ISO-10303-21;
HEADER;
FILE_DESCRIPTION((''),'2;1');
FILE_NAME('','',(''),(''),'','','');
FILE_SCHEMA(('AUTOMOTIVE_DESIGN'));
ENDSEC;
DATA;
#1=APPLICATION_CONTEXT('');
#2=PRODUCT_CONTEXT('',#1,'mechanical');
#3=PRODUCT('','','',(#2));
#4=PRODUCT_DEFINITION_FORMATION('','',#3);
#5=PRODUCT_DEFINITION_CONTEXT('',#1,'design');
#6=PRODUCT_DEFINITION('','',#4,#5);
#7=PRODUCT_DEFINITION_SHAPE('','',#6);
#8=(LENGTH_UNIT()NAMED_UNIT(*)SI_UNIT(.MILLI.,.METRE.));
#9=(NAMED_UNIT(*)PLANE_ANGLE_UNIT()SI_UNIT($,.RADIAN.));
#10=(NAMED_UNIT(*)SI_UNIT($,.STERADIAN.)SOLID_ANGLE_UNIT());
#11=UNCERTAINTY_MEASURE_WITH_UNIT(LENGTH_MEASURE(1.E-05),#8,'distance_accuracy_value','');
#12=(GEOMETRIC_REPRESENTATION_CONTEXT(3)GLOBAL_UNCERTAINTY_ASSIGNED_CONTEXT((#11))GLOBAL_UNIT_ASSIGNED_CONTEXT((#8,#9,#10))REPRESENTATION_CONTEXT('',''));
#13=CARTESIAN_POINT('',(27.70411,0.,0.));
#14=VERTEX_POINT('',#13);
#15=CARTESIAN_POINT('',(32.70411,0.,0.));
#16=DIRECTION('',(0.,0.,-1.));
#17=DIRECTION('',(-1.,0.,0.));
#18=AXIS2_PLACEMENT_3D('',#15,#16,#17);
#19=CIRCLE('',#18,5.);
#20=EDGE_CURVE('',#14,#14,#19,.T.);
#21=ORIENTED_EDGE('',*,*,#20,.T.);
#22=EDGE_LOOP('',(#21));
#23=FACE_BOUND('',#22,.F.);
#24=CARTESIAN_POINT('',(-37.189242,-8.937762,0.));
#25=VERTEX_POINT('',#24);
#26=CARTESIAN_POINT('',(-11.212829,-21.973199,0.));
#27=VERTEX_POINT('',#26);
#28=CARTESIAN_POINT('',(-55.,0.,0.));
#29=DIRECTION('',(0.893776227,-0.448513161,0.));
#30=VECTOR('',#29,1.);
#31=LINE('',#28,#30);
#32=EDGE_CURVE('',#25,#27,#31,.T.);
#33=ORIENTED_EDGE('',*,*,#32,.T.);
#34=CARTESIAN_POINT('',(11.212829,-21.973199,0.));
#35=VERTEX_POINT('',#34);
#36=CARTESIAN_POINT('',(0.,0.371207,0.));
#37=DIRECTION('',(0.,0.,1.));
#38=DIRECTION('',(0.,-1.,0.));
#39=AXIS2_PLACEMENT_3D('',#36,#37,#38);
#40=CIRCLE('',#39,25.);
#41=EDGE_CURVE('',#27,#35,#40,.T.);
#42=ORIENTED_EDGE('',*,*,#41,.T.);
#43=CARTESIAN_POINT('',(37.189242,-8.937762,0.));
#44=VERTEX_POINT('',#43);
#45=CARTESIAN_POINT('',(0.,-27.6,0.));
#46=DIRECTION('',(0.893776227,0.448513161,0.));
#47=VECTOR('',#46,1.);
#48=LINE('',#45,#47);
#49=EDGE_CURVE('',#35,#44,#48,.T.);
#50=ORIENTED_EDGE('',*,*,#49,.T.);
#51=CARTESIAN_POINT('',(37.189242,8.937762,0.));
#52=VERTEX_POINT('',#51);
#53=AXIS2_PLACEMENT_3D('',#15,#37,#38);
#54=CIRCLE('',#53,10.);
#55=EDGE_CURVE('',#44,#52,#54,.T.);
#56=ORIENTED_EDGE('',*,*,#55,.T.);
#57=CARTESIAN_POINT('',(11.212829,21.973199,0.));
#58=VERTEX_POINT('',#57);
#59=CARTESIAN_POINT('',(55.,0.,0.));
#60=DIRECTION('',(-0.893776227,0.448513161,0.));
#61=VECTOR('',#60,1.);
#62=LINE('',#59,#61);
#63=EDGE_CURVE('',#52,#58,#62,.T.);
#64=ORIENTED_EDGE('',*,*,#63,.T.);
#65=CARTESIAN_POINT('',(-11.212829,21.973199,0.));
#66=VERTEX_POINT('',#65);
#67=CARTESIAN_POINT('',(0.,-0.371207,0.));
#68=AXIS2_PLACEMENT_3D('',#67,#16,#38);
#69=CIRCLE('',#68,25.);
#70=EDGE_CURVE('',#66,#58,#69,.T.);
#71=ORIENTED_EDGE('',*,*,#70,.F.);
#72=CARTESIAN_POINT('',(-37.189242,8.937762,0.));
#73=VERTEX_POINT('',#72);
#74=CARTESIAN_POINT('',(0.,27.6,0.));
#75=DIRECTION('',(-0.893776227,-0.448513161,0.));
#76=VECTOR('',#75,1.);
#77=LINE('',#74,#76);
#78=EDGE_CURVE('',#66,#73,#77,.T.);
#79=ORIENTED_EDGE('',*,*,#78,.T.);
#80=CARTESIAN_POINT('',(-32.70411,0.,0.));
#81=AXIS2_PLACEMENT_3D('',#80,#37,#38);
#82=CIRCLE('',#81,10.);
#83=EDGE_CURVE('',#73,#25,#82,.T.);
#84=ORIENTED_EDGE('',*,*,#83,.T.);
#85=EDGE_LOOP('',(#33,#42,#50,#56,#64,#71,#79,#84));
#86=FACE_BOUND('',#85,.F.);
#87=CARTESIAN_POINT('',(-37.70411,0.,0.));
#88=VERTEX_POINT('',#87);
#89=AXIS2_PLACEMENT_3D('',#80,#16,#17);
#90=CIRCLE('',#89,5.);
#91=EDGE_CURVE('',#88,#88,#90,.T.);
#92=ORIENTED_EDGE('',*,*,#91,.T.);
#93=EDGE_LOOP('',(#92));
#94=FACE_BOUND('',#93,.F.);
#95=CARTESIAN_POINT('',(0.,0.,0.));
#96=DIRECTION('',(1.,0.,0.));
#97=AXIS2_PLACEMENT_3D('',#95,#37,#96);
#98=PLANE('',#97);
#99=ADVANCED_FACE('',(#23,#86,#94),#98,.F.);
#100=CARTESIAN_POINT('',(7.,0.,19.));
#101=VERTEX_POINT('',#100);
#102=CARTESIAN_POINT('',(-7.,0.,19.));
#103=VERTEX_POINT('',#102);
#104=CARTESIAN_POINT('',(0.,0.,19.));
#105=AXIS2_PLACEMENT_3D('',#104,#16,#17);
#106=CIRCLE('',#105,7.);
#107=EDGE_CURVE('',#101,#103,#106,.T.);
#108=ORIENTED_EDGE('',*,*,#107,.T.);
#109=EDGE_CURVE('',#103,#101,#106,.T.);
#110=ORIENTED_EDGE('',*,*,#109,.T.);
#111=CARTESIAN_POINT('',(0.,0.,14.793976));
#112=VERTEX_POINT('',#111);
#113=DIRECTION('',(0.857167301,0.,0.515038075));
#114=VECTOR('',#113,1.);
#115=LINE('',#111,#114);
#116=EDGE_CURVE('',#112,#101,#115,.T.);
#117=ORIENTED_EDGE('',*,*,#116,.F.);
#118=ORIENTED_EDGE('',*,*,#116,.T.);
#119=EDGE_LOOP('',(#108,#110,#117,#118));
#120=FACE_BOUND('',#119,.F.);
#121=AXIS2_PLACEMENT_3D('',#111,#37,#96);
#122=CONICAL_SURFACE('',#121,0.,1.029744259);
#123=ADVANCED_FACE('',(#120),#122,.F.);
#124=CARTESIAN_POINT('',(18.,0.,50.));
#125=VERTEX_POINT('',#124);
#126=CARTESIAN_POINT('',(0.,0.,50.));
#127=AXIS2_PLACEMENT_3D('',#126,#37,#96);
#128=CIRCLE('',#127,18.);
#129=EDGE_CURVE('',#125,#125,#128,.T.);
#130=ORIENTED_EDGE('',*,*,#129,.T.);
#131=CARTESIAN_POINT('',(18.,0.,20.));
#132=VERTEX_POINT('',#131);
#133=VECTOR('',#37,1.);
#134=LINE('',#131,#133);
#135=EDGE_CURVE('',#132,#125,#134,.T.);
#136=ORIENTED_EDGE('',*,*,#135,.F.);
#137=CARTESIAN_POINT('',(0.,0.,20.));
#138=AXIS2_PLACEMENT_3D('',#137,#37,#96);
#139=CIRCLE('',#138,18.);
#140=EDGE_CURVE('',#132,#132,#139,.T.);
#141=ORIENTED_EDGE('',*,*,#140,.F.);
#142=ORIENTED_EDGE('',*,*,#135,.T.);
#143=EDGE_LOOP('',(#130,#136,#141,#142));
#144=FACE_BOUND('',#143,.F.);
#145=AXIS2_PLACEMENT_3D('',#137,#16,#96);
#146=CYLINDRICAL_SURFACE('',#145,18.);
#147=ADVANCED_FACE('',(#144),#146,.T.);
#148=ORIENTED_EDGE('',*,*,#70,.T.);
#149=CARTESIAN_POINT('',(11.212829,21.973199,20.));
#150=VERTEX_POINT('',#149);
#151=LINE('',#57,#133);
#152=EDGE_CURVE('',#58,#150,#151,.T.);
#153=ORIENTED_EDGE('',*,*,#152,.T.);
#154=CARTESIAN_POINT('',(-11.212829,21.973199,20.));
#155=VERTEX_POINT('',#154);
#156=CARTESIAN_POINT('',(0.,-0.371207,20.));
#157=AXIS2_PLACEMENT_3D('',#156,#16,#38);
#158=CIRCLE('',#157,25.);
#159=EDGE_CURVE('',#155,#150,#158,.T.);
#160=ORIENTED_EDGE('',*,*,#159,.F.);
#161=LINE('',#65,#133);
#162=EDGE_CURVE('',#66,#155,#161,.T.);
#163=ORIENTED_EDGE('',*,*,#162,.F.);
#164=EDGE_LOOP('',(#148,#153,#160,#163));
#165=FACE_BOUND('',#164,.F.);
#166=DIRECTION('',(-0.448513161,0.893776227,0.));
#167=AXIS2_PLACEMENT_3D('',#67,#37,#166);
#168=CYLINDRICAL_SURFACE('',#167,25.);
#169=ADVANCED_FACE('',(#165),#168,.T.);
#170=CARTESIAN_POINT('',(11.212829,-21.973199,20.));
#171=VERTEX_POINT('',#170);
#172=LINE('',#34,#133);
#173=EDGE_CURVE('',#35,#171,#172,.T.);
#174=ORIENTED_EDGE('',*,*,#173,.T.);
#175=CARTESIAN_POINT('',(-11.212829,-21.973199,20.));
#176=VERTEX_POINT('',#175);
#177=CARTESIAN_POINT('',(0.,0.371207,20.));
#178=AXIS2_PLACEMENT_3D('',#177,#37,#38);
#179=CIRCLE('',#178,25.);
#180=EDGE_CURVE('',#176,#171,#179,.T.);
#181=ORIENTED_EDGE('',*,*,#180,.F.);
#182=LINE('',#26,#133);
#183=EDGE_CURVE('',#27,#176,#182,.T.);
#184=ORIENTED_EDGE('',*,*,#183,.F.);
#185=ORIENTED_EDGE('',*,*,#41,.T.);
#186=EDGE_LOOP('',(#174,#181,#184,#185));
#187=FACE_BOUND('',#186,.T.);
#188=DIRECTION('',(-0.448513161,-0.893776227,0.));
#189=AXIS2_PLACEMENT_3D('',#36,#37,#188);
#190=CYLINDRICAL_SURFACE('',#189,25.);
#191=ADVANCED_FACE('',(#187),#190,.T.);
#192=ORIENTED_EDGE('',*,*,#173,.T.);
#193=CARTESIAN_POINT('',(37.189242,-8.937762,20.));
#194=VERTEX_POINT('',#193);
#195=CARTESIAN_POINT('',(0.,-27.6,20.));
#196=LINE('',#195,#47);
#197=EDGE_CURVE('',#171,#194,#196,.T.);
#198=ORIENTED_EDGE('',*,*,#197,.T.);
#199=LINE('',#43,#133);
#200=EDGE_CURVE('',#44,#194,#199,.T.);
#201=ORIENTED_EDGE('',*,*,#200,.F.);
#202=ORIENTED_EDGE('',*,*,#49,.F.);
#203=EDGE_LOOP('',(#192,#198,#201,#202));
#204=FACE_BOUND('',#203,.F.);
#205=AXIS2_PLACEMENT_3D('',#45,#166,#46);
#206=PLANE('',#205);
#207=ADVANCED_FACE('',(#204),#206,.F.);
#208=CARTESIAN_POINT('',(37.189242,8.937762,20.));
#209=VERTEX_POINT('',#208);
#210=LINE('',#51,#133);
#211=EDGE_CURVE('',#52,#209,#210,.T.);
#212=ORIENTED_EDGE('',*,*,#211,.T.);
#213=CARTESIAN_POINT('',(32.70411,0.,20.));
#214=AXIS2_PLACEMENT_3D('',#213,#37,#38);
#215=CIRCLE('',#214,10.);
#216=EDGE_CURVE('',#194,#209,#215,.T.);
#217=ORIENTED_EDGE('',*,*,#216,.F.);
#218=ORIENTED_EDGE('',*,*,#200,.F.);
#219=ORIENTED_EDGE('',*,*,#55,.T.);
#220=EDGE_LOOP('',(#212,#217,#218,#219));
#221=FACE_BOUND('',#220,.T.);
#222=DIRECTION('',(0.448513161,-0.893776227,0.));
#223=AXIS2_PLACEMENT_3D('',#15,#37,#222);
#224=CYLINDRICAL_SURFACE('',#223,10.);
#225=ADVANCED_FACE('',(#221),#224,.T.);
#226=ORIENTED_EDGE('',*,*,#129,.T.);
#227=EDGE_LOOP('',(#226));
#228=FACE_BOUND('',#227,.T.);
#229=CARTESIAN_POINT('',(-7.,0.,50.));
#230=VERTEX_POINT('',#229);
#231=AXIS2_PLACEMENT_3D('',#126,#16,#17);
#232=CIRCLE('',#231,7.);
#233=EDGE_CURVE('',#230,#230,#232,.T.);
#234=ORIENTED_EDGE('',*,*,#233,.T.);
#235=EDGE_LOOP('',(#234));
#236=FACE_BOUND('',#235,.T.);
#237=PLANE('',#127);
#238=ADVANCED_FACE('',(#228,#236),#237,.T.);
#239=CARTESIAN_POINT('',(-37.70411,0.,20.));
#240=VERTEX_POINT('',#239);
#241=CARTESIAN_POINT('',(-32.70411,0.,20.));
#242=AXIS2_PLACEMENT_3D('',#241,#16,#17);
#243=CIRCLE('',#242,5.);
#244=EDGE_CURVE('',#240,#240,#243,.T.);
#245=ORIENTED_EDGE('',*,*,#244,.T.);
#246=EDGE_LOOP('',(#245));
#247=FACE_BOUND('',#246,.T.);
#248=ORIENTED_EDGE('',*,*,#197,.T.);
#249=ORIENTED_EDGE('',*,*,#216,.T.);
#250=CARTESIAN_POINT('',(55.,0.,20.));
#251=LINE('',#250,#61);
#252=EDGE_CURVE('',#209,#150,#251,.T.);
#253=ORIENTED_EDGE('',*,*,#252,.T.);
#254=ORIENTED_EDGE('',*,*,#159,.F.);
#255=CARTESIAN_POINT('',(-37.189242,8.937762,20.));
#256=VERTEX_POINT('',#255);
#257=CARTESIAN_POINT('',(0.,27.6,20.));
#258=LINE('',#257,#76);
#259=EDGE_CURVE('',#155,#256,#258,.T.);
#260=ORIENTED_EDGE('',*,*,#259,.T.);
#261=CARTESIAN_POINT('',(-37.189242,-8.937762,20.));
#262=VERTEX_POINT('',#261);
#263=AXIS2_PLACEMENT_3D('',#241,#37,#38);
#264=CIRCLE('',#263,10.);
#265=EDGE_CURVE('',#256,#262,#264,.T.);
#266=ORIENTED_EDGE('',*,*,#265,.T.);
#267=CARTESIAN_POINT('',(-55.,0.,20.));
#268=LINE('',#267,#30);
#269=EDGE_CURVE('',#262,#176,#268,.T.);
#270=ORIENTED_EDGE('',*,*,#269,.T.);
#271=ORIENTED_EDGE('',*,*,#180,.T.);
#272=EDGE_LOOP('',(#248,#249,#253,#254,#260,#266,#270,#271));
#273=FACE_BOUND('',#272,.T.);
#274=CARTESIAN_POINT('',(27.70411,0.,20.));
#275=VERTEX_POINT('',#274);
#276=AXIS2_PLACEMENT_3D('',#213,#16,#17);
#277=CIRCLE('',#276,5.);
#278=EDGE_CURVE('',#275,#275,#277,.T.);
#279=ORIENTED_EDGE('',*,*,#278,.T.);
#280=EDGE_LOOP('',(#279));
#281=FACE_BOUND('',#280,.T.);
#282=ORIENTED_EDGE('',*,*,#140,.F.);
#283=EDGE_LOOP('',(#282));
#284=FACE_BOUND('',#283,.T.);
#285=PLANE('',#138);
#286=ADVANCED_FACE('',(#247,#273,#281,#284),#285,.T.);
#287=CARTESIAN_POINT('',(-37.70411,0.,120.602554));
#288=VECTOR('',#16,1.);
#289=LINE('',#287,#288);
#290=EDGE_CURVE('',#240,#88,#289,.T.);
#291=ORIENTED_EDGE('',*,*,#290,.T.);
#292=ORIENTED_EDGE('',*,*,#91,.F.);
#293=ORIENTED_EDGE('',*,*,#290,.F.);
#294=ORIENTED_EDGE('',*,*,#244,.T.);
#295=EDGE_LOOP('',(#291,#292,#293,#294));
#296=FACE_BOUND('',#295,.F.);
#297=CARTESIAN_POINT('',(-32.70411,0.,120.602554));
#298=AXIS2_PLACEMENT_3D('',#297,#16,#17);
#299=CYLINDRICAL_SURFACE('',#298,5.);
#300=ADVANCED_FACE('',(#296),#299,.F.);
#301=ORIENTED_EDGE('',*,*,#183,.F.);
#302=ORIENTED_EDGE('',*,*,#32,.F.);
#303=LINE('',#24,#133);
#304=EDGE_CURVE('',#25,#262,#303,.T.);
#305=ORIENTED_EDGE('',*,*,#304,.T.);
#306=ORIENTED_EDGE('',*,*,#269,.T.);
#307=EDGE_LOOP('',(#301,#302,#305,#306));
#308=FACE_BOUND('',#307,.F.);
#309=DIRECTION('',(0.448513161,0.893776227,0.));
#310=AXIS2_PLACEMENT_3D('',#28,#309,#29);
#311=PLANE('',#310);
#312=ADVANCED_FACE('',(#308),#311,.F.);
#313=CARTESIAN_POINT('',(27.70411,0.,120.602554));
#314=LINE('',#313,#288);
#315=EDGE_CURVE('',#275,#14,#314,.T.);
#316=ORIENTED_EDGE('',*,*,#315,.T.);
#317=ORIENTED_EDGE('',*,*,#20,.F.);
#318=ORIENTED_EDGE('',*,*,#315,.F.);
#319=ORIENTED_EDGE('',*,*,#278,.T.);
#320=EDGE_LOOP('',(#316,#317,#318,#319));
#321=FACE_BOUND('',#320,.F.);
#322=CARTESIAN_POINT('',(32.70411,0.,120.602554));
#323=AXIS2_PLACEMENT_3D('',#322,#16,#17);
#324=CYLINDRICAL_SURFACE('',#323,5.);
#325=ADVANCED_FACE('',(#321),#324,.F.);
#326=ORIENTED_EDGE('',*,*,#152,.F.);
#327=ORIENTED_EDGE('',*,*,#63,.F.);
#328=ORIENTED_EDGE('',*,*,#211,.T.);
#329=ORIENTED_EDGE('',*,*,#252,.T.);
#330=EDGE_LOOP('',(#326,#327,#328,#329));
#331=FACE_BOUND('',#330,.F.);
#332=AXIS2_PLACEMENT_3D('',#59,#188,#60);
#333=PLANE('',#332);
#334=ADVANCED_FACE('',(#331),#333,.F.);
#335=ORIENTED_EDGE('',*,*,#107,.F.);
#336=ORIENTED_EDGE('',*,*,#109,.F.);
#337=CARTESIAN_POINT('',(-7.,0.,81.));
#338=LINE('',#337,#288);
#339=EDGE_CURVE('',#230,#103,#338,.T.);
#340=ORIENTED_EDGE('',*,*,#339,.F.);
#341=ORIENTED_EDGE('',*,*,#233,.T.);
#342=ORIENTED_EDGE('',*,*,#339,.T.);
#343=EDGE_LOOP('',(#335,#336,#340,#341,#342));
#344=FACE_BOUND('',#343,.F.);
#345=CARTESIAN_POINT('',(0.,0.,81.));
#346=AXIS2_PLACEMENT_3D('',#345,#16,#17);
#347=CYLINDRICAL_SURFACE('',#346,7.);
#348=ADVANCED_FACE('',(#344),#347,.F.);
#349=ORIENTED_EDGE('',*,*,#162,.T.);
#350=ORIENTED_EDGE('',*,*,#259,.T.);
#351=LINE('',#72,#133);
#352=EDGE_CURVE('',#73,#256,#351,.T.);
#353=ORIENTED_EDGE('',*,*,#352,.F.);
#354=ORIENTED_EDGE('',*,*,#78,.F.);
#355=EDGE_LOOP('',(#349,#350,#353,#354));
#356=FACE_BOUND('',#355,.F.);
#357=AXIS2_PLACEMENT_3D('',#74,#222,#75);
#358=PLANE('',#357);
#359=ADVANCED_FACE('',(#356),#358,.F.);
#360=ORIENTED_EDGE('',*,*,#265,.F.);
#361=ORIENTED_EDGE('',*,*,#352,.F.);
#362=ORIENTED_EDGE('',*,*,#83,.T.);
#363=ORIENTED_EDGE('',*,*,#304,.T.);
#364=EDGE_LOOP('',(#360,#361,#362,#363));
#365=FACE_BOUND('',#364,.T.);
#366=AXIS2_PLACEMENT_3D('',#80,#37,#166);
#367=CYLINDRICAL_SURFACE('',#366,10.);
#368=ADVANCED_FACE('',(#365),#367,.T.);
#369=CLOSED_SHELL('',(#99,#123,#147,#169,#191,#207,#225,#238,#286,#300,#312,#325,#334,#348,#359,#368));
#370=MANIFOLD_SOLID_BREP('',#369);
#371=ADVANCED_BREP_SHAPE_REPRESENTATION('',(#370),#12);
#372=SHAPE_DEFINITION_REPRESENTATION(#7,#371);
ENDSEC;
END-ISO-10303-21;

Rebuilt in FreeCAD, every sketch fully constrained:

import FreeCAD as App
import Part
import Sketcher

V = App.Vector


def edges_at(feature, points):
    """Names of the edges that pass closest to the given points."""
    edges = feature.Shape.Edges
    near = lambda p: min(range(len(edges)), key=lambda i: edges[i].distToShape(Part.Vertex(*p))[0])
    return sorted({f"Edge{near(p) + 1}" for p in points})


def add_polygon(sketch, points):
    """Adds a closed chain of lines whose ends are joined by coincident constraints."""
    first, n = sketch.GeometryCount, len(points)
    for a, b in zip(points, points[1:] + points[:1]):
        sketch.addGeometry(Part.LineSegment(App.Vector(*a, 0), App.Vector(*b, 0)), False)
    for i in range(n):
        sketch.addConstraint(Sketcher.Constraint("Coincident", first + i, 2, first + (i + 1) % n, 1))

doc = App.newDocument("Part")
body = doc.addObject("PartDesign::Body", "Body")

# Sketch on XY plane
sketch1 = doc.addObject("Sketcher::SketchObject", "Sketch")
body.addObject(sketch1)
sketch1.AttachmentSupport = (doc.XY_Plane, [""])
sketch1.MapMode = "FlatFace"
add_polygon(sketch1, [(0, 27.6), (-55, 0), (0, -27.6), (55, 0)])  # lines 0-3
sketch1.addConstraint([
    Sketcher.Constraint("Symmetric", 0, 2, 2, 2, -1, 1),
    Sketcher.Constraint("Symmetric", 1, 2, 3, 2, -1, 1),
    Sketcher.Constraint("PointOnObject", 0, 2, -1),
    Sketcher.Constraint("PointOnObject", 1, 2, -2),
    Sketcher.Constraint("DistanceX", 0, 2, -1, 1, 55.0),
    Sketcher.Constraint("DistanceY", 1, 2, -1, 1, 27.6),
])
pad1 = doc.addObject("PartDesign::Pad", "Pad")
body.addObject(pad1)
pad1.Profile = sketch1
pad1.Length = 20
doc.recompute()

fillet = doc.addObject("PartDesign::Fillet", "Fillet")
body.addObject(fillet)
fillet.Base = (pad1, edges_at(pad1, [(55, 0, 10), (-55, 0, 10)]))
fillet.Radius = 10
doc.recompute()

fillet2 = doc.addObject("PartDesign::Fillet", "Fillet001")
body.addObject(fillet2)
fillet2.Base = (fillet, edges_at(fillet, [(0, 27.6, 10), (0, -27.6, 10)]))
fillet2.Radius = 25

# Sketch on XY plane
sketch2 = doc.addObject("Sketcher::SketchObject", "Sketch001")
body.addObject(sketch2)
sketch2.AttachmentSupport = (doc.XY_Plane, [""])
sketch2.MapMode = "FlatFace"
sketch2.AttachmentOffset = App.Placement(V(0, 0, 20), App.Rotation())
sketch2.addGeometry([
    Part.Circle(V(-32.70411, 0, 0), V(0, 0, 1), 5),
    Part.Circle(V(32.70411, 0, 0), V(0, 0, 1), 5),
], False)
sketch2.addConstraint([
    Sketcher.Constraint("Equal", 0, 1),
    Sketcher.Constraint("Symmetric", 0, 3, 1, 3, -1, 1),
    Sketcher.Constraint("PointOnObject", 0, 3, -1),
    Sketcher.Constraint("Diameter", 0, 10.0),
    Sketcher.Constraint("DistanceX", 0, 3, -1, 1, 32.70411),
])
doc.recompute()
hole = doc.addObject("PartDesign::Hole", "Hole")
body.addObject(hole)
hole.Profile = sketch2
hole.ThreadType = "None"
hole.Diameter = 10
hole.DepthType = "ThroughAll"

# Sketch on XY plane
sketch3 = doc.addObject("Sketcher::SketchObject", "Sketch002")
body.addObject(sketch3)
sketch3.AttachmentSupport = (doc.XY_Plane, [""])
sketch3.MapMode = "FlatFace"
sketch3.AttachmentOffset = App.Placement(V(0, 0, 20), App.Rotation())
sketch3.addGeometry(Part.Circle(V(0, 0, 0), V(0, 0, 1), 18), False)
sketch3.addConstraint([
    Sketcher.Constraint("Coincident", 0, 3, -1, 1),
    Sketcher.Constraint("Diameter", 0, 36.0),
])
pad2 = doc.addObject("PartDesign::Pad", "Pad001")
body.addObject(pad2)
pad2.Profile = sketch3
pad2.Length = 30

# Sketch on XY plane
sketch4 = doc.addObject("Sketcher::SketchObject", "Sketch003")
body.addObject(sketch4)
sketch4.AttachmentSupport = (doc.XY_Plane, [""])
sketch4.MapMode = "FlatFace"
sketch4.AttachmentOffset = App.Placement(V(0, 0, 50), App.Rotation())
sketch4.addGeometry(Part.Circle(V(0, 0, 0), V(0, 0, 1), 7), False)
sketch4.addConstraint([
    Sketcher.Constraint("Coincident", 0, 3, -1, 1),
    Sketcher.Constraint("Diameter", 0, 14.0),
])
doc.recompute()
hole2 = doc.addObject("PartDesign::Hole", "Hole001")
body.addObject(hole2)
hole2.Profile = sketch4
hole2.ThreadType = "None"
hole2.Diameter = 14
hole2.DepthType = "Dimension"
hole2.Depth = 31
hole2.DrillPoint = "Angled"
hole2.DrillPointAngle = 118

doc.recompute()
